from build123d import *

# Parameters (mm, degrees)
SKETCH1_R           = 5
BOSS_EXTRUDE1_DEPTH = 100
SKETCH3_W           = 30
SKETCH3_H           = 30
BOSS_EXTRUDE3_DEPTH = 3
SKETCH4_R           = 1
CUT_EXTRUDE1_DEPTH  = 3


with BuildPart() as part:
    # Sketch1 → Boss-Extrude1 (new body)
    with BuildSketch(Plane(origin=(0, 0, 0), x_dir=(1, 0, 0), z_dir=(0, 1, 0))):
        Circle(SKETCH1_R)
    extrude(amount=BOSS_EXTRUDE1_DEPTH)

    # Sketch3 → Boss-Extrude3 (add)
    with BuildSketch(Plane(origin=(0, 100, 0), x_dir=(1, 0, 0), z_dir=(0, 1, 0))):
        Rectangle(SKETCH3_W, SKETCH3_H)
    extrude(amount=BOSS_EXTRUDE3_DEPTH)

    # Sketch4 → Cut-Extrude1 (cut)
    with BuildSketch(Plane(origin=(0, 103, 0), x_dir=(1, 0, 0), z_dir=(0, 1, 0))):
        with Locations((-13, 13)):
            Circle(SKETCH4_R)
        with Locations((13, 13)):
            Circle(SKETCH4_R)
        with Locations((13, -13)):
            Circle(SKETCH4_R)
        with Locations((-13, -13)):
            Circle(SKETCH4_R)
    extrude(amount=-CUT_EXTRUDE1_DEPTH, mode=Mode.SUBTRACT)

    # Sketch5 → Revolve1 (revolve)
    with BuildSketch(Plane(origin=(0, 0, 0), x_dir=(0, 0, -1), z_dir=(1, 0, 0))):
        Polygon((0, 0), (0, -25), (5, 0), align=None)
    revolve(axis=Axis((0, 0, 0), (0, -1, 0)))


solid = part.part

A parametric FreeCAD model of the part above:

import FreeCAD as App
import Part
import Sketcher
Q = App.Units.Quantity

doc = App.newDocument("Part")
body = doc.addObject("PartDesign::Body", "Body")

# Sketch on XZ plane
sketch1 = body.newObject("Sketcher::SketchObject", "Sketch")
sketch1.AttachmentSupport = (doc.getObject("XZ_Plane"), [""])
sketch1.MapMode = "FlatFace"
sketch1.addGeometry(Part.Circle(App.Vector(0, 0, 0), App.Vector(0, 0, 1), 5), False)
sketch1.addConstraint([
    Sketcher.Constraint("Coincident", 0, 3, -1, 1),
    Sketcher.Constraint("Diameter", 0, Q("10 mm")),
])
pad1 = body.newObject("PartDesign::Pad", "Pad")
pad1.Profile = sketch1
pad1.Length = 100
pad1.Reversed = True

# Sketch on XZ plane
sketch2 = body.newObject("Sketcher::SketchObject", "Sketch001")
sketch2.AttachmentSupport = (doc.getObject("XZ_Plane"), [""])
sketch2.MapMode = "FlatFace"
sketch2.AttachmentOffset = App.Placement(App.Vector(0, 0, -100), App.Rotation())
sketch2.addGeometry([
    Part.LineSegment(App.Vector(-15, -15, 0), App.Vector(-15, 15, 0)),
    Part.LineSegment(App.Vector(-15, 15, 0), App.Vector(15, 15, 0)),
    Part.LineSegment(App.Vector(15, 15, 0), App.Vector(15, -15, 0)),
    Part.LineSegment(App.Vector(15, -15, 0), App.Vector(-15, -15, 0)),
], False)
sketch2.addConstraint([
    Sketcher.Constraint("Coincident", 0, 2, 1, 1),
    Sketcher.Constraint("Coincident", 1, 2, 2, 1),
    Sketcher.Constraint("Coincident", 2, 2, 3, 1),
    Sketcher.Constraint("Coincident", 3, 2, 0, 1),
    Sketcher.Constraint("Vertical", 0),
    Sketcher.Constraint("Horizontal", 1),
    Sketcher.Constraint("Vertical", 2),
    Sketcher.Constraint("Horizontal", 3),
    Sketcher.Constraint("Symmetric", 0, 2, 2, 2, -1, 1),
    Sketcher.Constraint("Equal", 3, 0),
    Sketcher.Constraint("DistanceX", 1, 1, 1, 2, Q("30 mm")),
])
pad2 = body.newObject("PartDesign::Pad", "Pad001")
pad2.Profile = sketch2
pad2.Length = 3
pad2.Reversed = True

# Sketch on XZ plane
sketch3 = body.newObject("Sketcher::SketchObject", "Sketch002")
sketch3.AttachmentSupport = (doc.getObject("XZ_Plane"), [""])
sketch3.MapMode = "FlatFace"
sketch3.AttachmentOffset = App.Placement(App.Vector(0, 0, -103), App.Rotation())
sketch3.addGeometry([
    Part.Circle(App.Vector(-13, -13, 0), App.Vector(0, 0, 1), 1),
    Part.Circle(App.Vector(13, -13, 0), App.Vector(0, 0, 1), 1),
    Part.Circle(App.Vector(13, 13, 0), App.Vector(0, 0, 1), 1),
    Part.Circle(App.Vector(-13, 13, 0), App.Vector(0, 0, 1), 1),
], False)
sketch3.addConstraint([
    Sketcher.Constraint("Equal", 0, 1),
    Sketcher.Constraint("Equal", 1, 2),
    Sketcher.Constraint("Equal", 2, 3),
    Sketcher.Constraint("Symmetric", 0, 3, 2, 3, -1, 1),
    Sketcher.Constraint("Symmetric", 1, 3, 3, 3, -1, 1),
    Sketcher.Constraint("Symmetric", 0, 3, 1, 3, -2),
    Sketcher.Constraint("Diameter", 0, Q("2 mm")),
    Sketcher.Constraint("DistanceX", 0, 3, -1, 1, Q("13 mm")),
    Sketcher.Constraint("DistanceY", 0, 3, -1, 1, Q("13 mm")),
])
pocket1 = body.newObject("PartDesign::Pocket", "Pocket")
pocket1.Profile = sketch3
pocket1.Length = 3
pocket1.Reversed = True

# Sketch on YZ plane
sketch4 = body.newObject("Sketcher::SketchObject", "Sketch003")
sketch4.AttachmentSupport = (doc.getObject("YZ_Plane"), [""])
sketch4.MapMode = "FlatFace"
sketch4.addGeometry([
    Part.LineSegment(App.Vector(0, 0, 0), App.Vector(-25, 0, 0)),
    Part.LineSegment(App.Vector(-25, 0, 0), App.Vector(0, -5, 0)),
    Part.LineSegment(App.Vector(0, -5, 0), App.Vector(0, 0, 0)),
], False)
sketch4.addConstraint([
    Sketcher.Constraint("Coincident", 0, 2, 1, 1),
    Sketcher.Constraint("Coincident", 1, 2, 2, 1),
    Sketcher.Constraint("Coincident", 2, 2, 0, 1),
    Sketcher.Constraint("Horizontal", 0),
    Sketcher.Constraint("Vertical", 2),
    Sketcher.Constraint("Coincident", 2, 2, -1, 1),
    Sketcher.Constraint("DistanceX", 0, 2, 0, 1, Q("25 mm")),
    Sketcher.Constraint("DistanceY", 2, 1, 2, 2, Q("5 mm")),
])
revolution = body.newObject("PartDesign::Revolution", "Revolution")
revolution.Profile = sketch4
revolution.ReferenceAxis = (sketch4, ["H_Axis"])
revolution.Angle = 360

doc.recompute()
